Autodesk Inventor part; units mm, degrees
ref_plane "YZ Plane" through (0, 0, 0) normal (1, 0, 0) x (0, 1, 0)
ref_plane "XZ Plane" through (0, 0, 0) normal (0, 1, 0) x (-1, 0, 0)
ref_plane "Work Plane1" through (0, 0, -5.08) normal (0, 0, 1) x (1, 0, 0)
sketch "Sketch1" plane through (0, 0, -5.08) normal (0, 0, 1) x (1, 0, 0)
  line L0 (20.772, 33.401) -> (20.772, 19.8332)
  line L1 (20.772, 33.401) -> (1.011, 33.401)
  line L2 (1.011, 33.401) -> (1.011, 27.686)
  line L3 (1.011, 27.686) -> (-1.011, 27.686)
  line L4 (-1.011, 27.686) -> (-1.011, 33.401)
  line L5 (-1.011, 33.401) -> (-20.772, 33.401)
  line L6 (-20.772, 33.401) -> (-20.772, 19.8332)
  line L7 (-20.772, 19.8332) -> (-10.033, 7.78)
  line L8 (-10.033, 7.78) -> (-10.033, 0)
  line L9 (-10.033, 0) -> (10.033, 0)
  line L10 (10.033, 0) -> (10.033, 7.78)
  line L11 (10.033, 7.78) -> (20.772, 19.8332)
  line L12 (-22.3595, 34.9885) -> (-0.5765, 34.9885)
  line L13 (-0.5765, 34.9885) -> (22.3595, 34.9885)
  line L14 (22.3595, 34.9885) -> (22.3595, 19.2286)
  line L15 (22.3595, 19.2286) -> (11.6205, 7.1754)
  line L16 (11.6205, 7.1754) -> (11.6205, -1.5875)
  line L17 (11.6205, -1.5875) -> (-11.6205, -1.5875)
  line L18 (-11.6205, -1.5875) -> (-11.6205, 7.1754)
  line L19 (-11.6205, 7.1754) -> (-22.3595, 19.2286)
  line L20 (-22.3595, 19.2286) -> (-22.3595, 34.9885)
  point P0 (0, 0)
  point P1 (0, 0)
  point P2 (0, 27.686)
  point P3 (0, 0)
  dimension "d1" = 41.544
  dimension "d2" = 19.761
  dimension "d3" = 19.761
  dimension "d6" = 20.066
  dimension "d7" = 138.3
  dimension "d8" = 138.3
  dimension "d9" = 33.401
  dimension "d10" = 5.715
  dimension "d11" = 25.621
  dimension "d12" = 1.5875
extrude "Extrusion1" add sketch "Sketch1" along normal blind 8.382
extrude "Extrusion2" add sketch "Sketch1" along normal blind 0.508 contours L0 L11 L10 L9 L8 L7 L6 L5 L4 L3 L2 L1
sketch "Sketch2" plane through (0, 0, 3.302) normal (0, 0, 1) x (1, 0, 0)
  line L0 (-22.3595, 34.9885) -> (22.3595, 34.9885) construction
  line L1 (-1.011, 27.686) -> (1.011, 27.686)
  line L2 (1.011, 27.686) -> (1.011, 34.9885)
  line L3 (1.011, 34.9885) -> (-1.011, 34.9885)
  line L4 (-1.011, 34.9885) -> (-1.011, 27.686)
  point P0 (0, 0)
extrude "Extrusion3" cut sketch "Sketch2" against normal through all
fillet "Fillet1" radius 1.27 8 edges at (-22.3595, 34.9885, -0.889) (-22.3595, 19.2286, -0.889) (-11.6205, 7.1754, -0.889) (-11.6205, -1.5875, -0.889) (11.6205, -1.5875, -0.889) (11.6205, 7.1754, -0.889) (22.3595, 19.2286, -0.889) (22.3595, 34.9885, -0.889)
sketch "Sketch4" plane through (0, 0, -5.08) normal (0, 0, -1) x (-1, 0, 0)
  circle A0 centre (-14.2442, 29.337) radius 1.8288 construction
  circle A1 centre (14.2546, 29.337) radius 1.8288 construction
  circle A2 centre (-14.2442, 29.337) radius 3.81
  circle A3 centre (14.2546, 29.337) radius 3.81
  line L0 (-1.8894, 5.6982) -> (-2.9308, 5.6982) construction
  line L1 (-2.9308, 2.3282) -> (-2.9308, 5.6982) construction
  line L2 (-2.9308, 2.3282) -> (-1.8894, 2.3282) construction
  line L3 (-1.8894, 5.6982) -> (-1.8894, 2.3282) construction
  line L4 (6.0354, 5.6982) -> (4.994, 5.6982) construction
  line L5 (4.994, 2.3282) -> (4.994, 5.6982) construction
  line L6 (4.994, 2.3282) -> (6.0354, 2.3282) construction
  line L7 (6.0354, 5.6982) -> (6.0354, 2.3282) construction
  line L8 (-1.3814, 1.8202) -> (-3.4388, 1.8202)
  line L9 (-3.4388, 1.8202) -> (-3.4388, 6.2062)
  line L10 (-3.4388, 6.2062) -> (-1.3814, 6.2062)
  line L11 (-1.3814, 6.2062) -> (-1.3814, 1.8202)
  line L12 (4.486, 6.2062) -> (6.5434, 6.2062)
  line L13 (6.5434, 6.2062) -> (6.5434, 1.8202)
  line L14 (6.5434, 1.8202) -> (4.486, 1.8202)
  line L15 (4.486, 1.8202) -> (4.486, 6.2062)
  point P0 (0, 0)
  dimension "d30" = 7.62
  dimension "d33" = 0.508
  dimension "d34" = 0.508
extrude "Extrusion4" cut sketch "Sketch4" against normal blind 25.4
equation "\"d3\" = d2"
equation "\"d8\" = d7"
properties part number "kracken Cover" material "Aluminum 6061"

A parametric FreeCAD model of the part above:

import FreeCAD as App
import Part
import Sketcher

V = App.Vector
Q = App.Units.Quantity


def edges_at(feature, points):
    """Names of the edges that pass closest to the given points."""
    edges = feature.Shape.Edges
    near = lambda p: min(range(len(edges)), key=lambda i: edges[i].distToShape(Part.Vertex(*p))[0])
    return sorted({f"Edge{near(p) + 1}" for p in points})

doc = App.newDocument("Part")
body = doc.addObject("PartDesign::Body", "Body")

# Sketch on XY plane
sketch1 = body.newObject("Sketcher::SketchObject", "Sketch")
sketch1.AttachmentSupport = (doc.getObject("XY_Plane"), [""])
sketch1.MapMode = "FlatFace"
sketch1.AttachmentOffset = App.Placement(V(0, 0, -0.2 * 25.4), App.Rotation())
sketch1.addGeometry(Part.LineSegment(V(22.4, 35, 0), V(-22.4, 35, 0)), False)
sketch1.addGeometry(Part.LineSegment(V(-22.4, 35, 0), V(-22.4, 19.2, 0)), False)
sketch1.addGeometry(Part.LineSegment(V(-22.4, 19.2, 0), V(-11.6, 7.2, 0)), False)
sketch1.addGeometry(Part.LineSegment(V(-11.6, 7.2, 0), V(-11.6, -1.6, 0)), False)
sketch1.addGeometry(Part.LineSegment(V(-11.6, -1.6, 0), V(11.6, -1.6, 0)), False)
sketch1.addGeometry(Part.LineSegment(V(11.6, -1.6, 0), V(11.6, 7.2, 0)), False)
sketch1.addGeometry(Part.LineSegment(V(11.6, 7.2, 0), V(22.4, 19.2, 0)), False)
sketch1.addGeometry(Part.LineSegment(V(22.4, 19.2, 0), V(22.4, 35, 0)), False)
sketch1.addGeometry(Part.LineSegment(V(1, 33.4, 0), V(20.8, 33.4, 0)), False)
sketch1.addGeometry(Part.LineSegment(V(20.8, 33.4, 0), V(20.8, 19.8, 0)), False)
sketch1.addGeometry(Part.LineSegment(V(20.8, 19.8, 0), V(10, 7.8, 0)), False)
sketch1.addGeometry(Part.LineSegment(V(10, 7.8, 0), V(10, 0, 0)), False)
sketch1.addGeometry(Part.LineSegment(V(10, 0, 0), V(-10, 0, 0)), False)
sketch1.addGeometry(Part.LineSegment(V(-10, 0, 0), V(-10, 7.8, 0)), False)
sketch1.addGeometry(Part.LineSegment(V(-10, 7.8, 0), V(-20.8, 19.8, 0)), False)
sketch1.addGeometry(Part.LineSegment(V(-20.8, 19.8, 0), V(-20.8, 33.4, 0)), False)
sketch1.addGeometry(Part.LineSegment(V(-20.8, 33.4, 0), V(-1, 33.4, 0)), False)
sketch1.addGeometry(Part.LineSegment(V(-1, 33.4, 0), V(-1, 27.7, 0)), False)
sketch1.addGeometry(Part.LineSegment(V(-1, 27.7, 0), V(1, 27.7, 0)), False)
sketch1.addGeometry(Part.LineSegment(V(1, 27.7, 0), V(1, 33.4, 0)), False)
sketch1.addConstraint(Sketcher.Constraint("Coincident", 0, 2, 1, 1))
sketch1.addConstraint(Sketcher.Constraint("Coincident", 1, 2, 2, 1))
sketch1.addConstraint(Sketcher.Constraint("Coincident", 2, 2, 3, 1))
sketch1.addConstraint(Sketcher.Constraint("Coincident", 3, 2, 4, 1))
sketch1.addConstraint(Sketcher.Constraint("Coincident", 4, 2, 5, 1))
sketch1.addConstraint(Sketcher.Constraint("Coincident", 5, 2, 6, 1))
sketch1.addConstraint(Sketcher.Constraint("Coincident", 6, 2, 7, 1))
sketch1.addConstraint(Sketcher.Constraint("Coincident", 7, 2, 0, 1))
sketch1.addConstraint(Sketcher.Constraint("Coincident", 8, 2, 9, 1))
sketch1.addConstraint(Sketcher.Constraint("Coincident", 9, 2, 10, 1))
sketch1.addConstraint(Sketcher.Constraint("Coincident", 10, 2, 11, 1))
sketch1.addConstraint(Sketcher.Constraint("Coincident", 11, 2, 12, 1))
sketch1.addConstraint(Sketcher.Constraint("Coincident", 12, 2, 13, 1))
sketch1.addConstraint(Sketcher.Constraint("Coincident", 13, 2, 14, 1))
sketch1.addConstraint(Sketcher.Constraint("Coincident", 14, 2, 15, 1))
sketch1.addConstraint(Sketcher.Constraint("Coincident", 15, 2, 16, 1))
sketch1.addConstraint(Sketcher.Constraint("Coincident", 16, 2, 17, 1))
sketch1.addConstraint(Sketcher.Constraint("Coincident", 17, 2, 18, 1))
sketch1.addConstraint(Sketcher.Constraint("Coincident", 18, 2, 19, 1))
sketch1.addConstraint(Sketcher.Constraint("Coincident", 19, 2, 8, 1))
sketch1.addConstraint(Sketcher.Constraint("Horizontal", 0))
sketch1.addConstraint(Sketcher.Constraint("Vertical", 1))
sketch1.addConstraint(Sketcher.Constraint("Vertical", 3))
sketch1.addConstraint(Sketcher.Constraint("Horizontal", 4))
sketch1.addConstraint(Sketcher.Constraint("Vertical", 5))
sketch1.addConstraint(Sketcher.Constraint("Vertical", 7))
sketch1.addConstraint(Sketcher.Constraint("Horizontal", 8))
sketch1.addConstraint(Sketcher.Constraint("Vertical", 9))
sketch1.addConstraint(Sketcher.Constraint("Vertical", 11))
sketch1.addConstraint(Sketcher.Constraint("Horizontal", 12))
sketch1.addConstraint(Sketcher.Constraint("Vertical", 13))
sketch1.addConstraint(Sketcher.Constraint("Vertical", 15))
sketch1.addConstraint(Sketcher.Constraint("Horizontal", 16))
sketch1.addConstraint(Sketcher.Constraint("Vertical", 17))
sketch1.addConstraint(Sketcher.Constraint("Horizontal", 18))
sketch1.addConstraint(Sketcher.Constraint("Vertical", 19))
sketch1.addConstraint(Sketcher.Constraint("Symmetric", 11, 2, 12, 2, -1, 1))
sketch1.addConstraint(Sketcher.Constraint("Symmetric", 2, 2, 5, 2, -2))
sketch1.addConstraint(Sketcher.Constraint("Symmetric", 1, 2, 6, 2, -2))
sketch1.addConstraint(Sketcher.Constraint("Symmetric", 9, 2, 14, 2, -2))
sketch1.addConstraint(Sketcher.Constraint("Symmetric", 16, 2, 19, 2, -2))
sketch1.addConstraint(Sketcher.Constraint("Parallel", 6, 10))
sketch1.addConstraint(Sketcher.Constraint("Parallel", 2, 14))
sketch1.addConstraint(Sketcher.Constraint("Equal", 6, 10))
sketch1.addConstraint(Sketcher.Constraint("DistanceX", 12, 2, 12, 1, Q("0.79 in")))
sketch1.addConstraint(Sketcher.Constraint("DistanceX", 8, 1, 8, 2, Q("0.778 in")))
sketch1.addConstraint(Sketcher.Constraint("DistanceY", 17, 2, 17, 1, Q("0.225 in")))
sketch1.addConstraint(Sketcher.Constraint("DistanceY", 3, 2, -1, 1, Q("0.0625 in")))
sketch1.addConstraint(Sketcher.Constraint("DistanceY", -1, 1, 8, 2, Q("1.315 in")))
sketch1.addConstraint(Sketcher.Constraint("DistanceX", 8, 2, 7, 2, Q("0.0625 in")))
sketch1.addConstraint(Sketcher.Constraint("DistanceY", 8, 2, 7, 2, Q("0.0625 in")))
sketch1.addConstraint(Sketcher.Constraint("Angle", 2, Q("-48.3 deg")))
sketch1.addConstraint(Sketcher.Constraint("DistanceY", 13, 2, 15, 2, Q("1.0087 in")))
sketch1.addConstraint(Sketcher.Constraint("DistanceY", 3, 2, 3, 1, Q("0.345 in")))
sketch1.addConstraint(Sketcher.Constraint("DistanceX", 0, 2, 0, 1, Q("1.7606 in")))
pad1 = body.newObject("PartDesign::Pad", "Pad")
pad1.Profile = sketch1
pad1.Length = Q("0.33 in")

# Sketch on XY plane
sketch2 = body.newObject("Sketcher::SketchObject", "Sketch001")
sketch2.AttachmentSupport = (doc.getObject("XY_Plane"), [""])
sketch2.MapMode = "FlatFace"
sketch2.AttachmentOffset = App.Placement(V(0, 0, -0.2 * 25.4), App.Rotation())
sketch2.addGeometry(Part.LineSegment(V(20.8, 19.8, 0), V(20.8, 33.4, 0)), False)
sketch2.addGeometry(Part.LineSegment(V(20.8, 33.4, 0), V(1, 33.4, 0)), False)
sketch2.addGeometry(Part.LineSegment(V(1, 33.4, 0), V(1, 27.7, 0)), False)
sketch2.addGeometry(Part.LineSegment(V(1, 27.7, 0), V(-1, 27.7, 0)), False)
sketch2.addGeometry(Part.LineSegment(V(-1, 27.7, 0), V(-1, 33.4, 0)), False)
sketch2.addGeometry(Part.LineSegment(V(-1, 33.4, 0), V(-20.8, 33.4, 0)), False)
sketch2.addGeometry(Part.LineSegment(V(-20.8, 33.4, 0), V(-20.8, 19.8, 0)), False)
sketch2.addGeometry(Part.LineSegment(V(-20.8, 19.8, 0), V(-10, 7.8, 0)), False)
sketch2.addGeometry(Part.LineSegment(V(-10, 7.8, 0), V(-10, 0, 0)), False)
sketch2.addGeometry(Part.LineSegment(V(-10, 0, 0), V(10, 0, 0)), False)
sketch2.addGeometry(Part.LineSegment(V(10, 0, 0), V(10, 7.8, 0)), False)
sketch2.addGeometry(Part.LineSegment(V(10, 7.8, 0), V(20.8, 19.8, 0)), False)
sketch2.addConstraint(Sketcher.Constraint("Coincident", 0, 2, 1, 1))
sketch2.addConstraint(Sketcher.Constraint("Coincident", 1, 2, 2, 1))
sketch2.addConstraint(Sketcher.Constraint("Coincident", 2, 2, 3, 1))
sketch2.addConstraint(Sketcher.Constraint("Coincident", 3, 2, 4, 1))
sketch2.addConstraint(Sketcher.Constraint("Coincident", 4, 2, 5, 1))
sketch2.addConstraint(Sketcher.Constraint("Coincident", 5, 2, 6, 1))
sketch2.addConstraint(Sketcher.Constraint("Coincident", 6, 2, 7, 1))
sketch2.addConstraint(Sketcher.Constraint("Coincident", 7, 2, 8, 1))
sketch2.addConstraint(Sketcher.Constraint("Coincident", 8, 2, 9, 1))
sketch2.addConstraint(Sketcher.Constraint("Coincident", 9, 2, 10, 1))
sketch2.addConstraint(Sketcher.Constraint("Coincident", 10, 2, 11, 1))
sketch2.addConstraint(Sketcher.Constraint("Coincident", 11, 2, 0, 1))
sketch2.addConstraint(Sketcher.Constraint("Vertical", 0))
sketch2.addConstraint(Sketcher.Constraint("Horizontal", 1))
sketch2.addConstraint(Sketcher.Constraint("Vertical", 2))
sketch2.addConstraint(Sketcher.Constraint("Horizontal", 3))
sketch2.addConstraint(Sketcher.Constraint("Vertical", 4))
sketch2.addConstraint(Sketcher.Constraint("Horizontal", 5))
sketch2.addConstraint(Sketcher.Constraint("Vertical", 6))
sketch2.addConstraint(Sketcher.Constraint("Vertical", 8))
sketch2.addConstraint(Sketcher.Constraint("Horizontal", 9))
sketch2.addConstraint(Sketcher.Constraint("Vertical", 10))
sketch2.addConstraint(Sketcher.Constraint("Symmetric", 8, 2, 9, 2, -1, 1))
sketch2.addConstraint(Sketcher.Constraint("Symmetric", 1, 2, 4, 2, -2))
sketch2.addConstraint(Sketcher.Constraint("Symmetric", 6, 2, 11, 2, -2))
sketch2.addConstraint(Sketcher.Constraint("Horizontal", 7, 2, 10, 2))
sketch2.addConstraint(Sketcher.Constraint("DistanceX", 9, 1, 9, 2, Q("0.79 in")))
sketch2.addConstraint(Sketcher.Constraint("DistanceX", 1, 2, 1, 1, Q("0.778 in")))
sketch2.addConstraint(Sketcher.Constraint("DistanceY", 2, 2, 2, 1, Q("0.225 in")))
sketch2.addConstraint(Sketcher.Constraint("DistanceY", -1, 1, 0, 2, Q("1.315 in")))
sketch2.addConstraint(Sketcher.Constraint("Angle", 7, Q("-48.3 deg")))
sketch2.addConstraint(Sketcher.Constraint("DistanceX", 5, 2, 0, 2, Q("1.6356 in")))
sketch2.addConstraint(Sketcher.Constraint("DistanceY", 7, 2, 4, 2, Q("1.0087 in")))
pad2 = body.newObject("PartDesign::Pad", "Pad001")
pad2.Profile = sketch2
pad2.Length = Q("0.02 in")

# Sketch on XY plane
sketch3 = body.newObject("Sketcher::SketchObject", "Sketch002")
sketch3.AttachmentSupport = (doc.getObject("XY_Plane"), [""])
sketch3.MapMode = "FlatFace"
sketch3.AttachmentOffset = App.Placement(V(0, 0, 0.13 * 25.4), App.Rotation())
sketch3.addGeometry(Part.LineSegment(V(-1, 35, 0), V(-1, 27.7, 0)), False)
sketch3.addGeometry(Part.LineSegment(V(-1, 27.7, 0), V(1, 27.7, 0)), False)
sketch3.addGeometry(Part.LineSegment(V(1, 27.7, 0), V(1, 35, 0)), False)
sketch3.addGeometry(Part.LineSegment(V(1, 35, 0), V(-1, 35, 0)), False)
sketch3.addConstraint(Sketcher.Constraint("Coincident", 0, 2, 1, 1))
sketch3.addConstraint(Sketcher.Constraint("Coincident", 1, 2, 2, 1))
sketch3.addConstraint(Sketcher.Constraint("Coincident", 2, 2, 3, 1))
sketch3.addConstraint(Sketcher.Constraint("Coincident", 3, 2, 0, 1))
sketch3.addConstraint(Sketcher.Constraint("Vertical", 0))
sketch3.addConstraint(Sketcher.Constraint("Horizontal", 1))
sketch3.addConstraint(Sketcher.Constraint("Vertical", 2))
sketch3.addConstraint(Sketcher.Constraint("Horizontal", 3))
sketch3.addConstraint(Sketcher.Constraint("DistanceY", -1, 1, 0, 2, Q("1.09 in")))
sketch3.addConstraint(Sketcher.Constraint("DistanceX", 1, 1, 1, 2, Q("0.0796 in")))
sketch3.addConstraint(Sketcher.Constraint("DistanceY", 0, 2, 0, 1, Q("0.2875 in")))
sketch3.addConstraint(Sketcher.Constraint("DistanceX", 0, 2, -1, 1, Q("0.0398 in")))
pocket1 = body.newObject("PartDesign::Pocket", "Pocket")
pocket1.Profile = sketch3
pocket1.Type = "ThroughAll"
doc.recompute()

fillet = body.newObject("PartDesign::Fillet", "Fillet")
fillet.Base = (pocket1, edges_at(pocket1, [
    (-22.36, 34.989, -0.889),
    (-22.36, 19.229, -0.889),
    (-11.62, 7.175, -0.889),
    (-11.62, -1.587, -0.889),
    (11.62, -1.587, -0.889),
    (11.62, 7.175, -0.889),
    (22.36, 19.229, -0.889),
    (22.36, 34.989, -0.889),
]))
fillet.Radius = Q("0.05 in")

# Sketch on XY plane
sketch4 = body.newObject("Sketcher::SketchObject", "Sketch003")
sketch4.AttachmentSupport = (doc.getObject("XY_Plane"), [""])
sketch4.MapMode = "FlatFace"
sketch4.AttachmentOffset = App.Placement(V(0, 0, -0.2 * 25.4), App.Rotation())
sketch4.addGeometry(Part.Circle(V(14.2, 29.3, 0), V(0, 0, 1), 3.8), False)
sketch4.addGeometry(Part.Circle(V(-14.3, 29.3, 0), V(0, 0, 1), 3.8), False)
sketch4.addGeometry(Part.LineSegment(V(3.4, 1.8, 0), V(1.4, 1.8, 0)), False)
sketch4.addGeometry(Part.LineSegment(V(1.4, 1.8, 0), V(1.4, 6.2, 0)), False)
sketch4.addGeometry(Part.LineSegment(V(1.4, 6.2, 0), V(3.4, 6.2, 0)), False)
sketch4.addGeometry(Part.LineSegment(V(3.4, 6.2, 0), V(3.4, 1.8, 0)), False)
sketch4.addGeometry(Part.LineSegment(V(-6.5, 6.2, 0), V(-4.5, 6.2, 0)), False)
sketch4.addGeometry(Part.LineSegment(V(-4.5, 6.2, 0), V(-4.5, 1.8, 0)), False)
sketch4.addGeometry(Part.LineSegment(V(-4.5, 1.8, 0), V(-6.5, 1.8, 0)), False)
sketch4.addGeometry(Part.LineSegment(V(-6.5, 1.8, 0), V(-6.5, 6.2, 0)), False)
sketch4.addConstraint(Sketcher.Constraint("Coincident", 2, 2, 3, 1))
sketch4.addConstraint(Sketcher.Constraint("Coincident", 3, 2, 4, 1))
sketch4.addConstraint(Sketcher.Constraint("Coincident", 4, 2, 5, 1))
sketch4.addConstraint(Sketcher.Constraint("Coincident", 5, 2, 2, 1))
sketch4.addConstraint(Sketcher.Constraint("Coincident", 6, 2, 7, 1))
sketch4.addConstraint(Sketcher.Constraint("Coincident", 7, 2, 8, 1))
sketch4.addConstraint(Sketcher.Constraint("Coincident", 8, 2, 9, 1))
sketch4.addConstraint(Sketcher.Constraint("Coincident", 9, 2, 6, 1))
sketch4.addConstraint(Sketcher.Constraint("Horizontal", 2))
sketch4.addConstraint(Sketcher.Constraint("Vertical", 3))
sketch4.addConstraint(Sketcher.Constraint("Horizontal", 4))
sketch4.addConstraint(Sketcher.Constraint("Vertical", 5))
sketch4.addConstraint(Sketcher.Constraint("Horizontal", 6))
sketch4.addConstraint(Sketcher.Constraint("Vertical", 7))
sketch4.addConstraint(Sketcher.Constraint("Horizontal", 8))
sketch4.addConstraint(Sketcher.Constraint("Vertical", 9))
sketch4.addConstraint(Sketcher.Constraint("Equal", 0, 1))
sketch4.addConstraint(Sketcher.Constraint("Horizontal", 0, 3, 1, 3))
sketch4.addConstraint(Sketcher.Constraint("Horizontal", 4, 2, 6, 2))
sketch4.addConstraint(Sketcher.Constraint("Horizontal", 5, 2, 7, 2))
sketch4.addConstraint(Sketcher.Constraint("Equal", 4, 6))
sketch4.addConstraint(Sketcher.Constraint("Diameter", 0, Q("0.3 in")))
sketch4.addConstraint(Sketcher.Constraint("DistanceX", 2, 2, 2, 1, Q("0.081 in")))
sketch4.addConstraint(Sketcher.Constraint("DistanceY", -1, 1, 0, 3, Q("1.155 in")))
sketch4.addConstraint(Sketcher.Constraint("DistanceX", 1, 3, 0, 3, Q("1.122 in")))
sketch4.addConstraint(Sketcher.Constraint("DistanceX", 6, 2, 3, 2, Q("0.231 in")))
sketch4.addConstraint(Sketcher.Constraint("DistanceY", 3, 1, 3, 2, Q("4.386 mm")))
sketch4.addConstraint(Sketcher.Constraint("DistanceX", -1, 1, 0, 3, Q("0.5608 in")))
sketch4.addConstraint(Sketcher.Constraint("DistanceX", 2, 2, 0, 3, Q("0.5064 in")))
sketch4.addConstraint(Sketcher.Constraint("DistanceY", -1, 1, 2, 2, Q("1.8202 mm")))
pocket2 = body.newObject("PartDesign::Pocket", "Pocket001")
pocket2.Profile = sketch4
pocket2.Length = Q("1 in")
pocket2.Reversed = True

doc.recompute()
